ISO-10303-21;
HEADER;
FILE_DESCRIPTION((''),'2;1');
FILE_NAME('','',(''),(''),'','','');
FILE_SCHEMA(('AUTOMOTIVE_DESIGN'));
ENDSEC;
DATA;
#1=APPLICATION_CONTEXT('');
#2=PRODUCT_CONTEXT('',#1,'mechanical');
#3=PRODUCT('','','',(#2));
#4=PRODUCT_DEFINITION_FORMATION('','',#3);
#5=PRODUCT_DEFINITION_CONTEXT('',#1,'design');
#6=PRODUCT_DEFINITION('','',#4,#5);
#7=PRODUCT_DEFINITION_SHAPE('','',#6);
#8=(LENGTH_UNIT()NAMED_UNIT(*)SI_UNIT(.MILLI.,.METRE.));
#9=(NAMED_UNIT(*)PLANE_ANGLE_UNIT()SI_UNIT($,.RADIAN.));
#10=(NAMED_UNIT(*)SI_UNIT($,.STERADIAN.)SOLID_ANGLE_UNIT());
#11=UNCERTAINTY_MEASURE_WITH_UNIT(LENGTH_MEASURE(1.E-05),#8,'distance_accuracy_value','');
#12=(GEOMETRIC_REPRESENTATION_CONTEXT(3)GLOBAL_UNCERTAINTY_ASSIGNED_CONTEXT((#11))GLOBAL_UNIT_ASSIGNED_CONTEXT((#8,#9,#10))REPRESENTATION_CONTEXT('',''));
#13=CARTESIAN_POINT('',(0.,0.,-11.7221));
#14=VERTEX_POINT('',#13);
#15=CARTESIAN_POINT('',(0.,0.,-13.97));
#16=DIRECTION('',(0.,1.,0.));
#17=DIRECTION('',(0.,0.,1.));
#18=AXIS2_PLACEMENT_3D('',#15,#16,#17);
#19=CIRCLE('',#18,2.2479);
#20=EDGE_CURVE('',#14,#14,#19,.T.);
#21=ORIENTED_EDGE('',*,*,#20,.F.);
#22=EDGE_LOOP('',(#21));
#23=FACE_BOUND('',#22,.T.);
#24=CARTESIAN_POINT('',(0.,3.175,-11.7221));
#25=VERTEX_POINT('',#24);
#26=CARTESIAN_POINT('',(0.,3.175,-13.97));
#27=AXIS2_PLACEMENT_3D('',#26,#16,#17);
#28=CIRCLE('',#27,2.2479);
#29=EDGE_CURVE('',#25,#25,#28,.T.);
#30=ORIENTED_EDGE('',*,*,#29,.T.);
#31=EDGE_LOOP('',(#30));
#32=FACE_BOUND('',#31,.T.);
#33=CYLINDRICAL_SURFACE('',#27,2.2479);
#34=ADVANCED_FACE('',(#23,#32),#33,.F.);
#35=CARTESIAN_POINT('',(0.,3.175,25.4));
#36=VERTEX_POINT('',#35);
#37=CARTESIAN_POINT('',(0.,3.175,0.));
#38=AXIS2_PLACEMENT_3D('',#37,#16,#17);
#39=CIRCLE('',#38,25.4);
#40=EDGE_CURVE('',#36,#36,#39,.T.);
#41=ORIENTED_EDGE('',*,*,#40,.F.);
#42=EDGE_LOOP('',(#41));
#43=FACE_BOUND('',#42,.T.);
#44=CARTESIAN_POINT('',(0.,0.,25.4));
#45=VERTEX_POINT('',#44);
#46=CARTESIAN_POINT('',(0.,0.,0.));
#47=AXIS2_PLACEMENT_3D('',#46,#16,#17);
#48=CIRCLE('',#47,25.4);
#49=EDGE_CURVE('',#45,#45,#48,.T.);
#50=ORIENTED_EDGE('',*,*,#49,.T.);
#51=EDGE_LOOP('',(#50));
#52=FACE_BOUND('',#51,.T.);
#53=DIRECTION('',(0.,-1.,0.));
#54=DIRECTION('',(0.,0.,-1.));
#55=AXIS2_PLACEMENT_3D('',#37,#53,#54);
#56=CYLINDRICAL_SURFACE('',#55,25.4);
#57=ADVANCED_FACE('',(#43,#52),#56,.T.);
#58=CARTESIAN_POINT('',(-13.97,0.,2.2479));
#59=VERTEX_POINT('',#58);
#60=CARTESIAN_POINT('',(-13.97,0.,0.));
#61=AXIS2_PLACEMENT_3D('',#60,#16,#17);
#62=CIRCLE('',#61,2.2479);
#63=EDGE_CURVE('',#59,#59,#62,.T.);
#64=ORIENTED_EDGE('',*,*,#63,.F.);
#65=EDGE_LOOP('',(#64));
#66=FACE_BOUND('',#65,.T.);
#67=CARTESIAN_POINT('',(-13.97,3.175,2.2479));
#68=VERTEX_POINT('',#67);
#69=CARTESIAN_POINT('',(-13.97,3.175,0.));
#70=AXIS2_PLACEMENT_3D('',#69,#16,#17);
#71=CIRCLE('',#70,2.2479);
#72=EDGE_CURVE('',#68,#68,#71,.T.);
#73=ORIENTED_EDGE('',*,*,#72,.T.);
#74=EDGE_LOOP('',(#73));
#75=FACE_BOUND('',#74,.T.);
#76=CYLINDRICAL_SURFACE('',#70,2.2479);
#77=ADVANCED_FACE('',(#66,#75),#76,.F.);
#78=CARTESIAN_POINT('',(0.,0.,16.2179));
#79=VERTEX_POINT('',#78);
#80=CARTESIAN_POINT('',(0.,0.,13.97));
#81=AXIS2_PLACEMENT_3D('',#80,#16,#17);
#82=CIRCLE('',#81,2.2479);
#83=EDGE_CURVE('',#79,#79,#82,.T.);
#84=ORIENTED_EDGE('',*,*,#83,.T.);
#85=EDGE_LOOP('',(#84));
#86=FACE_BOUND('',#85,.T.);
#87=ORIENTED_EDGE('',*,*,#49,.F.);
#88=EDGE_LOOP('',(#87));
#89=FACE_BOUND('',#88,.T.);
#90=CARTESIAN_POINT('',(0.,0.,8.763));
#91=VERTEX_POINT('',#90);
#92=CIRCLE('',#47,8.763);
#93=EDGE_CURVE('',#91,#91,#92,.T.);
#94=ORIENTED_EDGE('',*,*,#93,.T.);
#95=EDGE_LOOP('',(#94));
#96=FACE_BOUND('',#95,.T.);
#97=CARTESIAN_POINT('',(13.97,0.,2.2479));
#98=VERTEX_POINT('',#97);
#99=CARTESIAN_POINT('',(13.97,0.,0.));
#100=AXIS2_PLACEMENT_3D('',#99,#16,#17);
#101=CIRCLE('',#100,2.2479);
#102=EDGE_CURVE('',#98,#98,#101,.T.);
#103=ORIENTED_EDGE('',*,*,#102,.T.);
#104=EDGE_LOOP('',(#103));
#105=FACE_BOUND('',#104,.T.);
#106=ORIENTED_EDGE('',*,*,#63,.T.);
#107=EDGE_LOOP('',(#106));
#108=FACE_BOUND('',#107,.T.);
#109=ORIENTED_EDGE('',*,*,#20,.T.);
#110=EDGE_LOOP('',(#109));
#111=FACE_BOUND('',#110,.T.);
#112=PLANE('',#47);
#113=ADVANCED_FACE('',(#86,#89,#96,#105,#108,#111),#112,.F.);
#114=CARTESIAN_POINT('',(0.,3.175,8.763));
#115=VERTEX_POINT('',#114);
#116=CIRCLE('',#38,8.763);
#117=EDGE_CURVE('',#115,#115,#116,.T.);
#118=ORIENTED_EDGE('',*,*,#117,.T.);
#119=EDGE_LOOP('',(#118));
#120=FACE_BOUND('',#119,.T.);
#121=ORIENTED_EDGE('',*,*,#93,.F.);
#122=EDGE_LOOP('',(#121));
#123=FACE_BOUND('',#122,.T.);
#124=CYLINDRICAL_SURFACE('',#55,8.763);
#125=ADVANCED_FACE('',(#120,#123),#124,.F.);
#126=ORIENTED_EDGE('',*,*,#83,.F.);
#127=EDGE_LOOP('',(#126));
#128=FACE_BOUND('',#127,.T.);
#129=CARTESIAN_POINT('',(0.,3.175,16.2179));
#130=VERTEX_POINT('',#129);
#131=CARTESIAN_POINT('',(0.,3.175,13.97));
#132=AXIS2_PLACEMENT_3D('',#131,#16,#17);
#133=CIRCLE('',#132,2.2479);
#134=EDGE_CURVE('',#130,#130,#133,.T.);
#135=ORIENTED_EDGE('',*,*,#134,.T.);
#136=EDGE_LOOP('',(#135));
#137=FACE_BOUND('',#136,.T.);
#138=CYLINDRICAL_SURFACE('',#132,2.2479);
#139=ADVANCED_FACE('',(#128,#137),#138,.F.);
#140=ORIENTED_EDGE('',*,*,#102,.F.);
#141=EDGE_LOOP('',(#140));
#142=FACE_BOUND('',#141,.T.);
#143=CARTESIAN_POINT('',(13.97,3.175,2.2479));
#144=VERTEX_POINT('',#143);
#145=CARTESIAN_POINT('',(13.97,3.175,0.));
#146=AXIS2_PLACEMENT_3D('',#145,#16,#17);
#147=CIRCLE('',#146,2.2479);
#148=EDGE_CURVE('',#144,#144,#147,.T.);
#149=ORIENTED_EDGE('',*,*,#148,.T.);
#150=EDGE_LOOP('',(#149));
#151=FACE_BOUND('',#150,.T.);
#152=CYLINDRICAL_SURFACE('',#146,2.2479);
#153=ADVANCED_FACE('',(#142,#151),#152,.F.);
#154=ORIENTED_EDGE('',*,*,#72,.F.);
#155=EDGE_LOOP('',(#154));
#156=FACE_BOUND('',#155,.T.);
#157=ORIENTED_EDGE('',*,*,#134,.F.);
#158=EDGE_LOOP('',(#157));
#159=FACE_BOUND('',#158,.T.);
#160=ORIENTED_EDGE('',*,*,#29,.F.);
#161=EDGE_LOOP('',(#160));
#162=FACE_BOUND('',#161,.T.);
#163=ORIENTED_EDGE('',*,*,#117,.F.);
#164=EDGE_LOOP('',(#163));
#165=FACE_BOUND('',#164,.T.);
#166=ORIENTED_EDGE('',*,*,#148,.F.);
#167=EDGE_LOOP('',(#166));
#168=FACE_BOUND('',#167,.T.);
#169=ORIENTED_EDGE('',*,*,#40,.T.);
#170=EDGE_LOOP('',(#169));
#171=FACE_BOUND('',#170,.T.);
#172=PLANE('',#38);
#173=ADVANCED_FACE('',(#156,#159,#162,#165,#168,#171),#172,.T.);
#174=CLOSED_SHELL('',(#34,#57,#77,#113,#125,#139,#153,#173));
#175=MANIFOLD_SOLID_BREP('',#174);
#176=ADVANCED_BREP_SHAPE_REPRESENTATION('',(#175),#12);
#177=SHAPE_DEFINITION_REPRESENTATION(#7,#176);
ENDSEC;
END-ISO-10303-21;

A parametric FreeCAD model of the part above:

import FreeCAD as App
import Part
import Sketcher
Q = App.Units.Quantity

doc = App.newDocument("Part")
body = doc.addObject("PartDesign::Body", "Body")

# Sketch on XZ plane
sketch1 = doc.addObject("Sketcher::SketchObject", "Sketch")
body.addObject(sketch1)
sketch1.AttachmentSupport = (doc.XZ_Plane, [""])
sketch1.MapMode = "FlatFace"
sketch1.addGeometry([
    Part.Circle(App.Vector(0, 0, 0), App.Vector(0, 0, 1), 25),
    Part.Circle(App.Vector(0, 0, 0), App.Vector(0, 0, 1), 9),
], False)
sketch1.addConstraint([
    Sketcher.Constraint("Coincident", 0, 3, -1, 1),
    Sketcher.Constraint("Coincident", 1, 3, -1, 1),
    Sketcher.Constraint("Diameter", 0, Q("2 in")),
    Sketcher.Constraint("Diameter", 1, Q("0.69 in")),
])
pad1 = doc.addObject("PartDesign::Pad", "Pad")
body.addObject(pad1)
pad1.Profile = sketch1
pad1.Length = Q("0.125 in")
pad1.Reversed = True

# Sketch on XZ plane
sketch2 = doc.addObject("Sketcher::SketchObject", "Sketch001")
body.addObject(sketch2)
sketch2.AttachmentSupport = (doc.XZ_Plane, [""])
sketch2.MapMode = "FlatFace"
sketch2.AttachmentOffset = App.Placement(App.Vector(0, 0, -0.125 * 25.4), App.Rotation())
sketch2.addGeometry([
    Part.Circle(App.Vector(14, 0, 0), App.Vector(0, 0, 1), 2.2),
    Part.Circle(App.Vector(0, -14, 0), App.Vector(0, 0, 1), 2.2),
    Part.Circle(App.Vector(-14, 0, 0), App.Vector(0, 0, 1), 2.2),
    Part.Circle(App.Vector(0, 14, 0), App.Vector(0, 0, 1), 2.2),
], False)
sketch2.addConstraint([
    Sketcher.Constraint("Equal", 0, 1),
    Sketcher.Constraint("Equal", 1, 2),
    Sketcher.Constraint("Equal", 2, 3),
    Sketcher.Constraint("Symmetric", 0, 3, 2, 3, -1, 1),
    Sketcher.Constraint("Symmetric", 1, 3, 3, 3, -1, 1),
    Sketcher.Constraint("PointOnObject", 0, 3, -1),
    Sketcher.Constraint("PointOnObject", 1, 3, -2),
    Sketcher.Constraint("Diameter", 0, Q("0.177 in")),
    Sketcher.Constraint("DistanceX", 2, 3, 0, 3, Q("1.1 in")),
    Sketcher.Constraint("DistanceY", 1, 3, 3, 3, Q("1.1 in")),
])
doc.recompute()
hole = doc.addObject("PartDesign::Hole", "Hole")
body.addObject(hole)
hole.Profile = sketch2
hole.ThreadType = "None"
hole.Diameter = Q("0.177 in")
hole.DepthType = "ThroughAll"
hole.Reversed = True

doc.recompute()
